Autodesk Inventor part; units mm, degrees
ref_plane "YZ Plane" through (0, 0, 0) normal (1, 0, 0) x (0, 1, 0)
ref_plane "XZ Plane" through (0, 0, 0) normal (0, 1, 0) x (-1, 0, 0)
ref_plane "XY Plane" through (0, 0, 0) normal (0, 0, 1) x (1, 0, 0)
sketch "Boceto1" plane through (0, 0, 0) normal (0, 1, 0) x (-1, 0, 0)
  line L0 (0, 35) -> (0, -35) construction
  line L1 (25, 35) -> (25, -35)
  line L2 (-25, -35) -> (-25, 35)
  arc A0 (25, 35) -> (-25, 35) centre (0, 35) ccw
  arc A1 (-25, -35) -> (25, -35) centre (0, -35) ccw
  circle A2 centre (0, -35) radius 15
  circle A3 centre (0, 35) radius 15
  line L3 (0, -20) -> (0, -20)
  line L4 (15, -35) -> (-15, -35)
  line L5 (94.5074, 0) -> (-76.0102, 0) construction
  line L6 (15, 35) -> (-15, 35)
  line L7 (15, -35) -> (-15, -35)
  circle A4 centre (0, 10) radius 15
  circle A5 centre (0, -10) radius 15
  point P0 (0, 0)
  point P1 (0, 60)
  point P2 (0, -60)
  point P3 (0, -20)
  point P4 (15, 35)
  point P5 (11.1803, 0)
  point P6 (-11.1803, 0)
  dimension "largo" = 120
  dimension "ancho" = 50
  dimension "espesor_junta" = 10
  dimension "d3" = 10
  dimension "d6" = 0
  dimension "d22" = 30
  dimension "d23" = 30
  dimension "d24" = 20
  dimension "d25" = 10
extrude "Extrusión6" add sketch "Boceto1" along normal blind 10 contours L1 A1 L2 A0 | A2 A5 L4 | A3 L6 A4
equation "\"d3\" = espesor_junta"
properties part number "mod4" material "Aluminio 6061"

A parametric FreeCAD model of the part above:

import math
import FreeCAD as App
import Part
import Sketcher
from FreeCAD import Vector

doc = App.newDocument("Part")
body = doc.addObject("PartDesign::Body", "Body")

# Sketch on XZ plane
sketch1 = body.newObject("Sketcher::SketchObject", "Sketch")
sketch1.AttachmentSupport = (doc.getObject("XZ_Plane"), [""])
sketch1.MapMode = "FlatFace"
sketch1.addGeometry([
    Part.LineSegment(Vector(-25, -35, 0), Vector(-25, 35, 0)),  # 0
    Part.ArcOfCircle(Part.Circle(Vector(0, 35, 0), Vector(0, 0, 1), 25), math.radians(0), math.radians(180)),  # 1
    Part.LineSegment(Vector(25, 35, 0), Vector(25, -35, 0)),  # 2
    Part.ArcOfCircle(Part.Circle(Vector(0, -35, 0), Vector(0, 0, 1), 25), math.radians(180), math.radians(360)),  # 3
    Part.ArcOfCircle(Part.Circle(Vector(0, -35, 0), Vector(0, 0, 1), 15), math.radians(180), math.radians(360)),  # 4
    Part.LineSegment(Vector(15, -35, 0), Vector(-15, -35, 0)),  # 5
    Part.ArcOfCircle(Part.Circle(Vector(0, 10, 0), Vector(0, 0, 1), 15), math.radians(-42), math.radians(222)),  # 6
    Part.ArcOfCircle(Part.Circle(Vector(0, -10, 0), Vector(0, 0, 1), 15), math.radians(138), math.radians(402)),  # 7
    Part.ArcOfCircle(Part.Circle(Vector(0, 35, 0), Vector(0, 0, 1), 15), math.radians(0), math.radians(180)),  # 8
    Part.LineSegment(Vector(-15, 35, 0), Vector(15, 35, 0)),  # 9
], False)
sketch1.addConstraint([
    Sketcher.Constraint("Tangent", 0, 2, 1, 2),
    Sketcher.Constraint("Tangent", 1, 1, 2, 1),
    Sketcher.Constraint("Tangent", 2, 2, 3, 2),
    Sketcher.Constraint("Tangent", 3, 1, 0, 1),
    Sketcher.Constraint("Coincident", 4, 1, 5, 2),
    Sketcher.Constraint("Coincident", 5, 1, 4, 2),
    Sketcher.Constraint("Coincident", 6, 1, 7, 2),
    Sketcher.Constraint("Coincident", 7, 1, 6, 2),
    Sketcher.Constraint("Coincident", 8, 1, 9, 2),
    Sketcher.Constraint("Coincident", 9, 1, 8, 2),
    Sketcher.Constraint("Vertical", 0),
    Sketcher.Constraint("Vertical", 2),
    Sketcher.Constraint("Horizontal", 5),
    Sketcher.Constraint("Horizontal", 9),
    Sketcher.Constraint("Coincident", 4, 3, 3, 3),
    Sketcher.Constraint("Coincident", 8, 3, 1, 3),
    Sketcher.Constraint("Equal", 4, 6),
    Sketcher.Constraint("Equal", 6, 7),
    Sketcher.Constraint("Equal", 7, 8),
    Sketcher.Constraint("Symmetric", 1, 3, 3, 3, -1, 1),
    Sketcher.Constraint("Symmetric", 6, 3, 7, 3, -1, 1),
    Sketcher.Constraint("PointOnObject", 6, 3, -2),
    Sketcher.Constraint("Horizontal", 3, 1, 4, 1),
    Sketcher.Constraint("Horizontal", 1, 1, 8, 1),
    Sketcher.Constraint("Radius", 1, 25.0),
    Sketcher.Constraint("Radius", 4, 15.0),
    Sketcher.Constraint("DistanceY", -1, 1, 6, 3, 10.0),
    Sketcher.Constraint("DistanceY", 0, 1, 0, 2, 70.0),
])
pad1 = body.newObject("PartDesign::Pad", "Pad")
pad1.Profile = sketch1
pad1.Length = 10
pad1.Reversed = True

doc.recompute()
